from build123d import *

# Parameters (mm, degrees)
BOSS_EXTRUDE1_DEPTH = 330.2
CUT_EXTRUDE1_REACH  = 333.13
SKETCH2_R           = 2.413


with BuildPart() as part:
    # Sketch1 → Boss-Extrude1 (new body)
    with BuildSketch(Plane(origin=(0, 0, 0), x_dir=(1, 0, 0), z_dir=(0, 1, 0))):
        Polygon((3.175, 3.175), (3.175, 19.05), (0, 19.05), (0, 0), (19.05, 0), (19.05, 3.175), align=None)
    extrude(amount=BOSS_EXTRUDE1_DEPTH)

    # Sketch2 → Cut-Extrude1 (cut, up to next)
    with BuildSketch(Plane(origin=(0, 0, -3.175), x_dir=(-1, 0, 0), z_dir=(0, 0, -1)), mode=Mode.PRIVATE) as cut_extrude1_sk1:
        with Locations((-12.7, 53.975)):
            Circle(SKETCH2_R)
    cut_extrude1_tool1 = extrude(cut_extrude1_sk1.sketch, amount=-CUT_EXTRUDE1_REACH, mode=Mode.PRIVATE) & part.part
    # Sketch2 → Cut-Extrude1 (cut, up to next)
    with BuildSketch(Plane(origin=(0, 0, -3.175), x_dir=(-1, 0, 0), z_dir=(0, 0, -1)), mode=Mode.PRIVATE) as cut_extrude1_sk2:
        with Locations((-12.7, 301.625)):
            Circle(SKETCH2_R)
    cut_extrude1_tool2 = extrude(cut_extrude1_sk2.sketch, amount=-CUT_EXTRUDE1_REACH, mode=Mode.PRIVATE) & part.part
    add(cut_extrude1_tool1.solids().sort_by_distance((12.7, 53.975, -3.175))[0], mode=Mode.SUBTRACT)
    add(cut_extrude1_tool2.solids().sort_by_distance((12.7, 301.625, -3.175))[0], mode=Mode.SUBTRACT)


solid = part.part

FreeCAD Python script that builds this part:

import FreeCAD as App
import Part
import Sketcher

V = App.Vector
Q = App.Units.Quantity

doc = App.newDocument("Part")
params = doc.addObject("Spreadsheet::Sheet", "Params")
for row, (alias, value) in enumerate([
    ("sketch1_width", "0.75 in"),
    ("sketch1_width2", "0.125 in"),
    ("pad1_length", "13 in"),
    ("sketch2_diameter", "0.19 in"),
    ("sketch3_diameter", "0.19 in"),
], start=1):
    params.set(f"A{row}", alias)
    params.set(f"B{row}", "=" + value)
    params.setAlias(f"B{row}", alias)

body = doc.addObject("PartDesign::Body", "Body")

sketch1 = body.newObject("Sketcher::SketchObject", "Sketch")
sketch1.AttachmentSupport = (doc.getObject("XZ_Plane"), [""])
sketch1.MapMode = "FlatFace"
sketch1.addGeometry([
    Part.LineSegment(V(3.2, -3.2, 0), V(3.2, -19.1, 0)),
    Part.LineSegment(V(3.2, -19.1, 0), V(0, -19.1, 0)),
    Part.LineSegment(V(0, -19.1, 0), V(0, 0, 0)),
    Part.LineSegment(V(0, 0, 0), V(19.1, 0, 0)),
    Part.LineSegment(V(19.1, 0, 0), V(19.1, -3.2, 0)),
    Part.LineSegment(V(19.1, -3.2, 0), V(3.2, -3.2, 0)),
], False)
sketch1.addConstraint([
    Sketcher.Constraint("Coincident", 0, 2, 1, 1),
    Sketcher.Constraint("Coincident", 1, 2, 2, 1),
    Sketcher.Constraint("Coincident", 2, 2, 3, 1),
    Sketcher.Constraint("Coincident", 3, 2, 4, 1),
    Sketcher.Constraint("Coincident", 4, 2, 5, 1),
    Sketcher.Constraint("Coincident", 5, 2, 0, 1),
    Sketcher.Constraint("Vertical", 0),
    Sketcher.Constraint("Horizontal", 1),
    Sketcher.Constraint("Vertical", 2),
    Sketcher.Constraint("Horizontal", 3),
    Sketcher.Constraint("Vertical", 4),
    Sketcher.Constraint("Horizontal", 5),
    Sketcher.Constraint("Coincident", 2, 2, -1, 1),
    Sketcher.Constraint("Equal", 5, 0),
    Sketcher.Constraint("Equal", 3, 2),
    Sketcher.Constraint("DistanceX", 3, 1, 3, 2, Q("0.75 in")),
    Sketcher.Constraint("DistanceX", 1, 2, 1, 1, Q("0.125 in")),
])
sketch1.setExpression("Constraints[15]", "Params.sketch1_width")
sketch1.setExpression("Constraints[16]", "Params.sketch1_width2")
pad1 = body.newObject("PartDesign::Pad", "Pad")
pad1.Profile = sketch1
pad1.setExpression("Length", "Params.pad1_length")
pad1.Reversed = True

sketch2 = body.newObject("Sketcher::SketchObject", "Sketch001")
sketch2.AttachmentSupport = (doc.getObject("XY_Plane"), [""])
sketch2.MapMode = "FlatFace"
sketch2.AttachmentOffset = App.Placement(V(0, 0, -0.125 * 25.4), App.Rotation())
sketch2.addGeometry(Part.Circle(V(12.7, 54, 0), V(0, 0, 1), 2.4), False)
sketch2.addConstraint([
    Sketcher.Constraint("Diameter", 0, Q("0.19 in")),
    Sketcher.Constraint("DistanceX", -1, 1, 0, 3, Q("0.5 in")),
    Sketcher.Constraint("DistanceY", -1, 1, 0, 3, Q("2.125 in")),
])
sketch2.setExpression("Constraints[0]", "Params.sketch2_diameter")
pocket1 = body.newObject("PartDesign::Pocket", "Pocket")
pocket1.Profile = sketch2
pocket1.Type = "UpToFirst"
pocket1.Reversed = True

sketch3 = body.newObject("Sketcher::SketchObject", "Sketch002")
sketch3.AttachmentSupport = (doc.getObject("XY_Plane"), [""])
sketch3.MapMode = "FlatFace"
sketch3.AttachmentOffset = App.Placement(V(0, 0, -0.125 * 25.4), App.Rotation())
sketch3.addGeometry(Part.Circle(V(12.7, 301.6, 0), V(0, 0, 1), 2.4), False)
sketch3.addConstraint([
    Sketcher.Constraint("Diameter", 0, Q("0.19 in")),
    Sketcher.Constraint("DistanceX", -1, 1, 0, 3, Q("0.5 in")),
    Sketcher.Constraint("DistanceY", -1, 1, 0, 3, Q("11.875 in")),
])
sketch3.setExpression("Constraints[0]", "Params.sketch3_diameter")
pocket2 = body.newObject("PartDesign::Pocket", "Pocket001")
pocket2.Profile = sketch3
pocket2.Type = "UpToFirst"
pocket2.Reversed = True

doc.recompute()
